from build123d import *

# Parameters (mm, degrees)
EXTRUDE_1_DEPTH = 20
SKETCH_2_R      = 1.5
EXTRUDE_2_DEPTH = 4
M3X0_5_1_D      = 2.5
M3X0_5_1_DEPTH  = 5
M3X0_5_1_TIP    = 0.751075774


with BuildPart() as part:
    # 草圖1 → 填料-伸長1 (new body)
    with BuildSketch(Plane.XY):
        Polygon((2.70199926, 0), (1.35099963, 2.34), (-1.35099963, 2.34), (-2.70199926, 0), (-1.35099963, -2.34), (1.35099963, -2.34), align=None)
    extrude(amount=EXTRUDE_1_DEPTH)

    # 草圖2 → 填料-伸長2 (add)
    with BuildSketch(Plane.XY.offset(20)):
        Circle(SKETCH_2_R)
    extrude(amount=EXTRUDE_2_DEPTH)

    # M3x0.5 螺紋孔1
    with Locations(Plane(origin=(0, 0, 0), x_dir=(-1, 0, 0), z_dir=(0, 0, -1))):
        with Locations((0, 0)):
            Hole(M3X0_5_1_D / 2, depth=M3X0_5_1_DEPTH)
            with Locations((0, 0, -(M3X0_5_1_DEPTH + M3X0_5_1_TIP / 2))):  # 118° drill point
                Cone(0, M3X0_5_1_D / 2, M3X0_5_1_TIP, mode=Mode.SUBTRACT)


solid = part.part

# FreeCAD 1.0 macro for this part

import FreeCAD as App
import Part
import Sketcher
from FreeCAD import Vector
Q = App.Units.Quantity


def add_polygon(sketch, points):
    """Adds a closed chain of lines whose ends are joined by coincident constraints."""
    first, n = sketch.GeometryCount, len(points)
    for a, b in zip(points, points[1:] + points[:1]):
        sketch.addGeometry(Part.LineSegment(App.Vector(*a, 0), App.Vector(*b, 0)), False)
    for i in range(n):
        sketch.addConstraint(Sketcher.Constraint("Coincident", first + i, 2, first + (i + 1) % n, 1))

doc = App.newDocument("Part")
body = doc.addObject("PartDesign::Body", "Body")

# Sketch on XY plane
sketch1 = doc.addObject("Sketcher::SketchObject", "Sketch")
body.addObject(sketch1)
sketch1.AttachmentSupport = (doc.XY_Plane, [""])
sketch1.MapMode = "FlatFace"
add_polygon(sketch1, [(2.7, 0), (1.4, 2.3), (-1.4, 2.3), (-2.7, 0), (-1.4, -2.3), (1.4, -2.3)])  # lines 0-5
sketch1.addConstraint([
    Sketcher.Constraint("Horizontal", 1),
    Sketcher.Constraint("Horizontal", 4),
    Sketcher.Constraint("Symmetric", 0, 2, 3, 2, -1, 1),
    Sketcher.Constraint("Symmetric", 2, 2, 5, 2, -1, 1),
    Sketcher.Constraint("PointOnObject", 2, 2, -1),
    Sketcher.Constraint("Parallel", 2, 5),
    Sketcher.Constraint("Vertical", 1, 2, 3, 2),
    Sketcher.Constraint("Angle", 0, Q("120 deg")),
    Sketcher.Constraint("DistanceX", 1, 2, 1, 1, Q("2.701999 mm")),
    Sketcher.Constraint("DistanceY", -1, 1, 0, 2, Q("2.34 mm")),
])
pad1 = doc.addObject("PartDesign::Pad", "Pad")
body.addObject(pad1)
pad1.Profile = sketch1
pad1.Length = 20

# Sketch on XY plane
sketch2 = doc.addObject("Sketcher::SketchObject", "Sketch001")
body.addObject(sketch2)
sketch2.AttachmentSupport = (doc.XY_Plane, [""])
sketch2.MapMode = "FlatFace"
sketch2.AttachmentOffset = App.Placement(Vector(0, 0, 20), App.Rotation())
sketch2.addGeometry(Part.Circle(Vector(0, 0, 0), Vector(0, 0, 1), 1.5), False)
sketch2.addConstraint([
    Sketcher.Constraint("Coincident", 0, 3, -1, 1),
    Sketcher.Constraint("Diameter", 0, Q("3 mm")),
])
pad2 = doc.addObject("PartDesign::Pad", "Pad001")
body.addObject(pad2)
pad2.Profile = sketch2
pad2.Length = 4

# Sketch on XY plane
sketch3 = doc.addObject("Sketcher::SketchObject", "Sketch002")
body.addObject(sketch3)
sketch3.AttachmentSupport = (doc.XY_Plane, [""])
sketch3.MapMode = "FlatFace"
sketch3.addGeometry(Part.Circle(Vector(0, 0, 0), Vector(0, 0, 1), 1.2), False)
sketch3.addConstraint([
    Sketcher.Constraint("Coincident", 0, 3, -1, 1),
    Sketcher.Constraint("Diameter", 0, Q("2.5 mm")),
])
doc.recompute()
hole = doc.addObject("PartDesign::Hole", "Hole")
body.addObject(hole)
hole.Profile = sketch3
hole.ThreadType = "None"
hole.Diameter = 2.5
hole.DepthType = "Dimension"
hole.Depth = 5
hole.DrillPoint = "Angled"
hole.DrillPointAngle = 118
hole.Reversed = True

doc.recompute()
